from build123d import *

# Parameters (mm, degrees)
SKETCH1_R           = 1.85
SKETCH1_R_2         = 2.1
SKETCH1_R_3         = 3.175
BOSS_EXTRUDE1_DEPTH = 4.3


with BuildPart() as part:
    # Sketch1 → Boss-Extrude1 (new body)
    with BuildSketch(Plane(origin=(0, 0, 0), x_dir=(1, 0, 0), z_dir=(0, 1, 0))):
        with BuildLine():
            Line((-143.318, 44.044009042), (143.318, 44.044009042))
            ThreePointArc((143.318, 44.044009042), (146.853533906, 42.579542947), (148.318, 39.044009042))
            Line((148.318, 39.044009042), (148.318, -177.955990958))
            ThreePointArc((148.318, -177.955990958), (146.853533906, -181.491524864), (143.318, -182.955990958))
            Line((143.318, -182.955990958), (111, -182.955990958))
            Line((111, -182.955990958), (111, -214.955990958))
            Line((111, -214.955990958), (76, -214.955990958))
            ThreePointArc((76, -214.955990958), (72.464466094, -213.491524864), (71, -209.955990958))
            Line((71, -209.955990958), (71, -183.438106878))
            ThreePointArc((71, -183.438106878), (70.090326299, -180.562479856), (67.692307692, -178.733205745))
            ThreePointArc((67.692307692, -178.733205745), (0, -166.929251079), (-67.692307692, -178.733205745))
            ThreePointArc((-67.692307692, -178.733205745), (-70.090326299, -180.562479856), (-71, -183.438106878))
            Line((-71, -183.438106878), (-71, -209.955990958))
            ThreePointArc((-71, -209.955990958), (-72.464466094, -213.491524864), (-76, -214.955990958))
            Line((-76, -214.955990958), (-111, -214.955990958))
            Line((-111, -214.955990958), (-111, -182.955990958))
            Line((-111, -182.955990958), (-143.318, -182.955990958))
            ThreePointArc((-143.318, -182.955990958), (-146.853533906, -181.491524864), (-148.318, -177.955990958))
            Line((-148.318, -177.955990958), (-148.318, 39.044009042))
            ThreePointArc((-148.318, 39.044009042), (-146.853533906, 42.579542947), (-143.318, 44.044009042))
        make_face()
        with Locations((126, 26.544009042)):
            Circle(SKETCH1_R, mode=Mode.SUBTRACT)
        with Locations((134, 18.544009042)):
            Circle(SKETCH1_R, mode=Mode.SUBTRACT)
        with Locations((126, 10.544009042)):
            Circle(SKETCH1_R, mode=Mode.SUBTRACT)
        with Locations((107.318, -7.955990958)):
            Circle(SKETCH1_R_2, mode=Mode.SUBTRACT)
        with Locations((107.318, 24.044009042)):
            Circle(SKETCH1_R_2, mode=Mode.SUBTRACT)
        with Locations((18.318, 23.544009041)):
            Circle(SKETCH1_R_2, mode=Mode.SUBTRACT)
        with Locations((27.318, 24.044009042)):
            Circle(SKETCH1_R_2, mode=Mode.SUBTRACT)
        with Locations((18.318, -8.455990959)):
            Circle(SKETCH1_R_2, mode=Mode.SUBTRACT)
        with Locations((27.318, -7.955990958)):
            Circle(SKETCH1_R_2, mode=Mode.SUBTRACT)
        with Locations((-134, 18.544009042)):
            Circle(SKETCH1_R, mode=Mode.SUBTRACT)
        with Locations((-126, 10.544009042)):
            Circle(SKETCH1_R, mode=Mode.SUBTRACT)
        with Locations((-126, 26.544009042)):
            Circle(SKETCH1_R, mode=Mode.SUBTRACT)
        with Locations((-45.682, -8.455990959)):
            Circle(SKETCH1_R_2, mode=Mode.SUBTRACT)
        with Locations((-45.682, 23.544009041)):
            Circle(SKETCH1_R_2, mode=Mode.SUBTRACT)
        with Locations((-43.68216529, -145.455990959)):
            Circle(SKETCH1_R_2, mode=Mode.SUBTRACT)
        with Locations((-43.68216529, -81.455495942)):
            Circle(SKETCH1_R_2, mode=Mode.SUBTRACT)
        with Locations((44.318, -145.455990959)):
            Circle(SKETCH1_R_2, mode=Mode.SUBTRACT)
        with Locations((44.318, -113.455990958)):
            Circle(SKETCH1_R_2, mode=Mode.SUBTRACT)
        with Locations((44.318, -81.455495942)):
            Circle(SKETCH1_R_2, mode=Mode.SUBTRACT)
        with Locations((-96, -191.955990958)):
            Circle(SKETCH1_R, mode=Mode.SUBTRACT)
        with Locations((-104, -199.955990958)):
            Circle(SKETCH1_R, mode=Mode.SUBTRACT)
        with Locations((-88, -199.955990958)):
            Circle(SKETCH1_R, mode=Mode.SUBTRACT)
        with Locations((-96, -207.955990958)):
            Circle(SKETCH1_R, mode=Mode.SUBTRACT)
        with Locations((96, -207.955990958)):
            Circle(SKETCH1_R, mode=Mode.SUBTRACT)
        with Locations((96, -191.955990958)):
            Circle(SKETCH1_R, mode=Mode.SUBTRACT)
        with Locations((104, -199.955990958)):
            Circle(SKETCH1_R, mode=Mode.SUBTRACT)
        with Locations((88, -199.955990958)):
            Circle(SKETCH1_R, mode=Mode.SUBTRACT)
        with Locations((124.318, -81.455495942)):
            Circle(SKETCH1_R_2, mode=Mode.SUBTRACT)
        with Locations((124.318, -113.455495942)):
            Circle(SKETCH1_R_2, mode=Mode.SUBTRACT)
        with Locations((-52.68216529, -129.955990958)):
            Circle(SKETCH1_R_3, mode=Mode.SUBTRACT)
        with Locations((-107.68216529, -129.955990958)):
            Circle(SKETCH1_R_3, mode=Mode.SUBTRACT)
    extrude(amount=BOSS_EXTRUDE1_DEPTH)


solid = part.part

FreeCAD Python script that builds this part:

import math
import FreeCAD as App
import Part
import Sketcher

doc = App.newDocument("Part")
body = doc.addObject("PartDesign::Body", "Body")

# Sketch on XZ plane
sketch1 = doc.addObject("Sketcher::SketchObject", "Sketch")
body.addObject(sketch1)
sketch1.AttachmentSupport = (doc.XZ_Plane, [""])
sketch1.MapMode = "FlatFace"
sketch1.addGeometry(Part.LineSegment(App.Vector(143.3, -44, 0), App.Vector(-143.3, -44, 0)), False)
sketch1.addGeometry(Part.ArcOfCircle(Part.Circle(App.Vector(-143.3, -39, 0), App.Vector(0, 0, 1), 5), math.radians(-180), math.radians(-90)), False)
sketch1.addGeometry(Part.LineSegment(App.Vector(-148.3, -39, 0), App.Vector(-148.3, 178, 0)), False)
sketch1.addGeometry(Part.ArcOfCircle(Part.Circle(App.Vector(-143.3, 178, 0), App.Vector(0, 0, 1), 5), math.radians(90), math.radians(180)), False)
sketch1.addGeometry(Part.LineSegment(App.Vector(-143.3, 183, 0), App.Vector(-111, 183, 0)), False)
sketch1.addGeometry(Part.LineSegment(App.Vector(-111, 183, 0), App.Vector(-111, 215, 0)), False)
sketch1.addGeometry(Part.LineSegment(App.Vector(-111, 215, 0), App.Vector(-76, 215, 0)), False)
sketch1.addGeometry(Part.ArcOfCircle(Part.Circle(App.Vector(-76, 210, 0), App.Vector(0, 0, 1), 5), math.radians(0), math.radians(90)), False)
sketch1.addGeometry(Part.LineSegment(App.Vector(-71, 210, 0), App.Vector(-71, 183.4, 0)), False)
sketch1.addGeometry(Part.ArcOfCircle(Part.Circle(App.Vector(-66, 183.4, 0), App.Vector(0, 0, 1), 5), math.radians(180), math.radians(250)), False)
sketch1.addGeometry(Part.ArcOfCircle(Part.Circle(App.Vector(0, 366.9, 0), App.Vector(0, 0, 1), 200), math.radians(-110), math.radians(-70)), False)
sketch1.addGeometry(Part.ArcOfCircle(Part.Circle(App.Vector(66, 183.4, 0), App.Vector(0, 0, 1), 5), math.radians(-70), math.radians(0)), False)
sketch1.addGeometry(Part.LineSegment(App.Vector(71, 183.4, 0), App.Vector(71, 210, 0)), False)
sketch1.addGeometry(Part.ArcOfCircle(Part.Circle(App.Vector(76, 210, 0), App.Vector(0, 0, 1), 5), math.radians(90), math.radians(180)), False)
sketch1.addGeometry(Part.LineSegment(App.Vector(76, 215, 0), App.Vector(111, 215, 0)), False)
sketch1.addGeometry(Part.LineSegment(App.Vector(111, 215, 0), App.Vector(111, 183, 0)), False)
sketch1.addGeometry(Part.LineSegment(App.Vector(111, 183, 0), App.Vector(143.3, 183, 0)), False)
sketch1.addGeometry(Part.ArcOfCircle(Part.Circle(App.Vector(143.3, 178, 0), App.Vector(0, 0, 1), 5), math.radians(0), math.radians(90)), False)
sketch1.addGeometry(Part.LineSegment(App.Vector(148.3, 178, 0), App.Vector(148.3, -39, 0)), False)
sketch1.addGeometry(Part.ArcOfCircle(Part.Circle(App.Vector(143.3, -39, 0), App.Vector(0, 0, 1), 5), math.radians(-90), math.radians(0)), False)
sketch1.addGeometry(Part.Circle(App.Vector(104, 200, 0), App.Vector(0, 0, 1), 1.9), False)
sketch1.addGeometry(Part.Circle(App.Vector(96, 208, 0), App.Vector(0, 0, 1), 1.9), False)
sketch1.addGeometry(Part.Circle(App.Vector(88, 200, 0), App.Vector(0, 0, 1), 1.9), False)
sketch1.addGeometry(Part.Circle(App.Vector(96, 192, 0), App.Vector(0, 0, 1), 1.9), False)
sketch1.addGeometry(Part.Circle(App.Vector(124.3, 113.5, 0), App.Vector(0, 0, 1), 2.1), False)
sketch1.addGeometry(Part.Circle(App.Vector(44.3, 145.5, 0), App.Vector(0, 0, 1), 2.1), False)
sketch1.addGeometry(Part.Circle(App.Vector(44.3, 113.5, 0), App.Vector(0, 0, 1), 2.1), False)
sketch1.addGeometry(Part.Circle(App.Vector(-96, 208, 0), App.Vector(0, 0, 1), 1.9), False)
sketch1.addGeometry(Part.Circle(App.Vector(-88, 200, 0), App.Vector(0, 0, 1), 1.9), False)
sketch1.addGeometry(Part.Circle(App.Vector(-96, 192, 0), App.Vector(0, 0, 1), 1.9), False)
sketch1.addGeometry(Part.Circle(App.Vector(-104, 200, 0), App.Vector(0, 0, 1), 1.9), False)
sketch1.addGeometry(Part.Circle(App.Vector(-43.7, 145.5, 0), App.Vector(0, 0, 1), 2.1), False)
sketch1.addGeometry(Part.Circle(App.Vector(-52.7, 130, 0), App.Vector(0, 0, 1), 3.2), False)
sketch1.addGeometry(Part.Circle(App.Vector(-107.7, 130, 0), App.Vector(0, 0, 1), 3.2), False)
sketch1.addGeometry(Part.Circle(App.Vector(124.3, 81.5, 0), App.Vector(0, 0, 1), 2.1), False)
sketch1.addGeometry(Part.Circle(App.Vector(44.3, 81.5, 0), App.Vector(0, 0, 1), 2.1), False)
sketch1.addGeometry(Part.Circle(App.Vector(107.3, 8, 0), App.Vector(0, 0, 1), 2.1), False)
sketch1.addGeometry(Part.Circle(App.Vector(126, -10.5, 0), App.Vector(0, 0, 1), 1.9), False)
sketch1.addGeometry(Part.Circle(App.Vector(134, -18.5, 0), App.Vector(0, 0, 1), 1.9), False)
sketch1.addGeometry(Part.Circle(App.Vector(126, -26.5, 0), App.Vector(0, 0, 1), 1.9), False)
sketch1.addGeometry(Part.Circle(App.Vector(107.3, -24, 0), App.Vector(0, 0, 1), 2.1), False)
sketch1.addGeometry(Part.Circle(App.Vector(27.3, 8, 0), App.Vector(0, 0, 1), 2.1), False)
sketch1.addGeometry(Part.Circle(App.Vector(18.3, 8.5, 0), App.Vector(0, 0, 1), 2.1), False)
sketch1.addGeometry(Part.Circle(App.Vector(27.3, -24, 0), App.Vector(0, 0, 1), 2.1), False)
sketch1.addGeometry(Part.Circle(App.Vector(18.3, -23.5, 0), App.Vector(0, 0, 1), 2.1), False)
sketch1.addGeometry(Part.Circle(App.Vector(-43.7, 81.5, 0), App.Vector(0, 0, 1), 2.1), False)
sketch1.addGeometry(Part.Circle(App.Vector(-45.7, 8.5, 0), App.Vector(0, 0, 1), 2.1), False)
sketch1.addGeometry(Part.Circle(App.Vector(-45.7, -23.5, 0), App.Vector(0, 0, 1), 2.1), False)
sketch1.addGeometry(Part.Circle(App.Vector(-126, -10.5, 0), App.Vector(0, 0, 1), 1.9), False)
sketch1.addGeometry(Part.Circle(App.Vector(-134, -18.5, 0), App.Vector(0, 0, 1), 1.9), False)
sketch1.addGeometry(Part.Circle(App.Vector(-126, -26.5, 0), App.Vector(0, 0, 1), 1.9), False)
sketch1.addConstraint(Sketcher.Constraint("Tangent", 0, 2, 1, 2))
sketch1.addConstraint(Sketcher.Constraint("Tangent", 1, 1, 2, 1))
sketch1.addConstraint(Sketcher.Constraint("Tangent", 2, 2, 3, 2))
sketch1.addConstraint(Sketcher.Constraint("Tangent", 3, 1, 4, 1))
sketch1.addConstraint(Sketcher.Constraint("Coincident", 4, 2, 5, 1))
sketch1.addConstraint(Sketcher.Constraint("Coincident", 5, 2, 6, 1))
sketch1.addConstraint(Sketcher.Constraint("Tangent", 6, 2, 7, 2))
sketch1.addConstraint(Sketcher.Constraint("Tangent", 7, 1, 8, 1))
sketch1.addConstraint(Sketcher.Constraint("Tangent", 8, 2, 9, 1))
sketch1.addConstraint(Sketcher.Constraint("Tangent", 9, 2, 10, 1))
sketch1.addConstraint(Sketcher.Constraint("Tangent", 10, 2, 11, 1))
sketch1.addConstraint(Sketcher.Constraint("Tangent", 11, 2, 12, 1))
sketch1.addConstraint(Sketcher.Constraint("Tangent", 12, 2, 13, 2))
sketch1.addConstraint(Sketcher.Constraint("Tangent", 13, 1, 14, 1))
sketch1.addConstraint(Sketcher.Constraint("Coincident", 14, 2, 15, 1))
sketch1.addConstraint(Sketcher.Constraint("Coincident", 15, 2, 16, 1))
sketch1.addConstraint(Sketcher.Constraint("Tangent", 16, 2, 17, 2))
sketch1.addConstraint(Sketcher.Constraint("Tangent", 17, 1, 18, 1))
sketch1.addConstraint(Sketcher.Constraint("Tangent", 18, 2, 19, 2))
sketch1.addConstraint(Sketcher.Constraint("Tangent", 19, 1, 0, 1))
sketch1.addConstraint(Sketcher.Constraint("Horizontal", 0))
sketch1.addConstraint(Sketcher.Constraint("Vertical", 2))
sketch1.addConstraint(Sketcher.Constraint("Horizontal", 4))
sketch1.addConstraint(Sketcher.Constraint("Vertical", 5))
sketch1.addConstraint(Sketcher.Constraint("Horizontal", 6))
sketch1.addConstraint(Sketcher.Constraint("Vertical", 8))
sketch1.addConstraint(Sketcher.Constraint("Vertical", 12))
sketch1.addConstraint(Sketcher.Constraint("Horizontal", 14))
sketch1.addConstraint(Sketcher.Constraint("Vertical", 15))
sketch1.addConstraint(Sketcher.Constraint("Horizontal", 16))
sketch1.addConstraint(Sketcher.Constraint("Vertical", 18))
sketch1.addConstraint(Sketcher.Constraint("Equal", 1, 3))
sketch1.addConstraint(Sketcher.Constraint("Equal", 3, 7))
sketch1.addConstraint(Sketcher.Constraint("Equal", 7, 9))
sketch1.addConstraint(Sketcher.Constraint("Equal", 9, 11))
sketch1.addConstraint(Sketcher.Constraint("Equal", 11, 13))
sketch1.addConstraint(Sketcher.Constraint("Equal", 13, 17))
sketch1.addConstraint(Sketcher.Constraint("Equal", 17, 19))
sketch1.addConstraint(Sketcher.Constraint("Equal", 20, 21))
sketch1.addConstraint(Sketcher.Constraint("Equal", 21, 22))
sketch1.addConstraint(Sketcher.Constraint("Equal", 22, 23))
sketch1.addConstraint(Sketcher.Constraint("Equal", 24, 25))
sketch1.addConstraint(Sketcher.Constraint("Equal", 25, 26))
sketch1.addConstraint(Sketcher.Constraint("Equal", 23, 27))
sketch1.addConstraint(Sketcher.Constraint("Equal", 27, 28))
sketch1.addConstraint(Sketcher.Constraint("Equal", 28, 29))
sketch1.addConstraint(Sketcher.Constraint("Equal", 29, 30))
sketch1.addConstraint(Sketcher.Constraint("Equal", 26, 31))
sketch1.addConstraint(Sketcher.Constraint("Equal", 32, 33))
sketch1.addConstraint(Sketcher.Constraint("Equal", 31, 34))
sketch1.addConstraint(Sketcher.Constraint("Equal", 34, 35))
sketch1.addConstraint(Sketcher.Constraint("Equal", 35, 36))
sketch1.addConstraint(Sketcher.Constraint("Equal", 30, 37))
sketch1.addConstraint(Sketcher.Constraint("Equal", 37, 38))
sketch1.addConstraint(Sketcher.Constraint("Equal", 38, 39))
sketch1.addConstraint(Sketcher.Constraint("Equal", 36, 40))
sketch1.addConstraint(Sketcher.Constraint("Equal", 40, 41))
sketch1.addConstraint(Sketcher.Constraint("Equal", 41, 42))
sketch1.addConstraint(Sketcher.Constraint("Equal", 42, 43))
sketch1.addConstraint(Sketcher.Constraint("Equal", 43, 44))
sketch1.addConstraint(Sketcher.Constraint("Equal", 44, 45))
sketch1.addConstraint(Sketcher.Constraint("Equal", 45, 46))
sketch1.addConstraint(Sketcher.Constraint("Equal", 46, 47))
sketch1.addConstraint(Sketcher.Constraint("Equal", 39, 48))
sketch1.addConstraint(Sketcher.Constraint("Equal", 48, 49))
sketch1.addConstraint(Sketcher.Constraint("Equal", 49, 50))
sketch1.addConstraint(Sketcher.Constraint("Symmetric", 9, 3, 11, 3, -2))
sketch1.addConstraint(Sketcher.Constraint("Symmetric", 3, 3, 17, 3, -2))
sketch1.addConstraint(Sketcher.Constraint("Symmetric", 21, 3, 27, 3, -2))
sketch1.addConstraint(Sketcher.Constraint("Symmetric", 22, 3, 28, 3, -2))
sketch1.addConstraint(Sketcher.Constraint("Symmetric", 23, 3, 29, 3, -2))
sketch1.addConstraint(Sketcher.Constraint("Symmetric", 20, 3, 30, 3, -2))
sketch1.addConstraint(Sketcher.Constraint("Symmetric", 37, 3, 48, 3, -2))
sketch1.addConstraint(Sketcher.Constraint("Symmetric", 38, 3, 49, 3, -2))
sketch1.addConstraint(Sketcher.Constraint("Symmetric", 39, 3, 50, 3, -2))
sketch1.addConstraint(Sketcher.Constraint("Symmetric", 5, 2, 14, 2, -2))
sketch1.addConstraint(Sketcher.Constraint("Horizontal", 20, 3, 22, 3))
sketch1.addConstraint(Sketcher.Constraint("Horizontal", 25, 3, 31, 3))
sketch1.addConstraint(Sketcher.Constraint("Horizontal", 32, 3, 33, 3))
sketch1.addConstraint(Sketcher.Constraint("Horizontal", 34, 3, 35, 3))
sketch1.addConstraint(Sketcher.Constraint("Horizontal", 36, 3, 41, 3))
sketch1.addConstraint(Sketcher.Constraint("Horizontal", 40, 3, 43, 3))
sketch1.addConstraint(Sketcher.Constraint("Horizontal", 35, 3, 45, 3))
sketch1.addConstraint(Sketcher.Constraint("Horizontal", 42, 3, 46, 3))
sketch1.addConstraint(Sketcher.Constraint("Horizontal", 44, 3, 47, 3))
sketch1.addConstraint(Sketcher.Constraint("Vertical", 21, 3, 23, 3))
sketch1.addConstraint(Sketcher.Constraint("Vertical", 25, 3, 26, 3))
sketch1.addConstraint(Sketcher.Constraint("Vertical", 24, 3, 34, 3))
sketch1.addConstraint(Sketcher.Constraint("Vertical", 26, 3, 35, 3))
sketch1.addConstraint(Sketcher.Constraint("Vertical", 37, 3, 39, 3))
sketch1.addConstraint(Sketcher.Constraint("Vertical", 36, 3, 40, 3))
sketch1.addConstraint(Sketcher.Constraint("Vertical", 41, 3, 43, 3))
sketch1.addConstraint(Sketcher.Constraint("Vertical", 42, 3, 44, 3))
sketch1.addConstraint(Sketcher.Constraint("Vertical", 31, 3, 45, 3))
sketch1.addConstraint(Sketcher.Constraint("Vertical", 46, 3, 47, 3))
sketch1.addConstraint(Sketcher.Constraint("Radius", 1, 5.0))
sketch1.addConstraint(Sketcher.Constraint("Radius", 10, 200.0))
sketch1.addConstraint(Sketcher.Constraint("Diameter", 20, 3.7))
sketch1.addConstraint(Sketcher.Constraint("Diameter", 24, 4.2))
sketch1.addConstraint(Sketcher.Constraint("Diameter", 32, 6.35))
sketch1.addConstraint(Sketcher.Constraint("DistanceX", 6, 1, 6, 2, 35.0))
sketch1.addConstraint(Sketcher.Constraint("DistanceY", 2, 1, 2, 2, 217.0))
sketch1.addConstraint(Sketcher.Constraint("DistanceY", 5, 1, 5, 2, 32.0))
sketch1.addConstraint(Sketcher.Constraint("DistanceX", 7, 3, -1, 1, 76.0))
sketch1.addConstraint(Sketcher.Constraint("DistanceX", -1, 1, 20, 3, 104.0))
sketch1.addConstraint(Sketcher.Constraint("DistanceX", -1, 1, 21, 3, 96.0))
sketch1.addConstraint(Sketcher.Constraint("DistanceX", -1, 1, 22, 3, 88.0))
sketch1.addConstraint(Sketcher.Constraint("DistanceX", -1, 1, 37, 3, 126.0))
sketch1.addConstraint(Sketcher.Constraint("DistanceX", -1, 1, 38, 3, 134.0))
sketch1.addConstraint(Sketcher.Constraint("DistanceY", 20, 3, 13, 3, 10.0))
sketch1.addConstraint(Sketcher.Constraint("DistanceY", 20, 3, 21, 3, 8.0))
sketch1.addConstraint(Sketcher.Constraint("DistanceY", 23, 3, 20, 3, 8.0))
sketch1.addConstraint(Sketcher.Constraint("DistanceX", 24, 3, 17, 3, 19.0))
sketch1.addConstraint(Sketcher.Constraint("DistanceY", 26, 3, 25, 3, 32.0))
sketch1.addConstraint(Sketcher.Constraint("DistanceX", 26, 3, 24, 3, 80.0))
sketch1.addConstraint(Sketcher.Constraint("DistanceX", 32, 3, 31, 3, 9.0))
sketch1.addConstraint(Sketcher.Constraint("DistanceY", 32, 3, 29, 3, 62.0))
sketch1.addConstraint(Sketcher.Constraint("DistanceX", 33, 3, 32, 3, 55.0))
sketch1.addConstraint(Sketcher.Constraint("DistanceY", 34, 3, 24, 3, 32.0))
sketch1.addConstraint(Sketcher.Constraint("DistanceX", 36, 3, 19, 3, 36.0))
sketch1.addConstraint(Sketcher.Constraint("DistanceY", 19, 3, 36, 3, 47.0))
sketch1.addConstraint(Sketcher.Constraint("DistanceY", 38, 3, 37, 3, 8.0))
sketch1.addConstraint(Sketcher.Constraint("DistanceY", 39, 3, 38, 3, 8.0))
sketch1.addConstraint(Sketcher.Constraint("DistanceY", 40, 3, 36, 3, 32.0))
sketch1.addConstraint(Sketcher.Constraint("DistanceX", 41, 3, 35, 3, 17.0))
sketch1.addConstraint(Sketcher.Constraint("DistanceX", 42, 3, 41, 3, 9.0))
sketch1.addConstraint(Sketcher.Constraint("DistanceY", 42, 3, 26, 3, 105.0))
sketch1.addConstraint(Sketcher.Constraint("DistanceY", 44, 3, 42, 3, 32.0))
sketch1.addConstraint(Sketcher.Constraint("DistanceX", 46, 3, 42, 3, 64.0))
sketch1.addConstraint(Sketcher.Constraint("DistanceY", 47, 3, 48, 3, 13.0))
sketch1.addConstraint(Sketcher.Constraint("DistanceY", 25, 3, 23, 3, 46.5))
sketch1.addConstraint(Sketcher.Constraint("DistanceX", 0, 2, 0, 1, 286.636))
sketch1.addConstraint(Sketcher.Constraint("DistanceY", 8, 2, 8, 1, 26.517884))
sketch1.addConstraint(Sketcher.Constraint("DistanceY", 1, 3, -1, 1, 39.044009))
sketch1.addConstraint(Sketcher.Constraint("DistanceY", 24, 3, 11, 3, 69.982611))
sketch1.addConstraint(Sketcher.Constraint("DistanceX", 31, 3, -1, 1, 43.682165))
pad1 = doc.addObject("PartDesign::Pad", "Pad")
body.addObject(pad1)
pad1.Profile = sketch1
pad1.Length = 4.3
pad1.Reversed = True

doc.recompute()
